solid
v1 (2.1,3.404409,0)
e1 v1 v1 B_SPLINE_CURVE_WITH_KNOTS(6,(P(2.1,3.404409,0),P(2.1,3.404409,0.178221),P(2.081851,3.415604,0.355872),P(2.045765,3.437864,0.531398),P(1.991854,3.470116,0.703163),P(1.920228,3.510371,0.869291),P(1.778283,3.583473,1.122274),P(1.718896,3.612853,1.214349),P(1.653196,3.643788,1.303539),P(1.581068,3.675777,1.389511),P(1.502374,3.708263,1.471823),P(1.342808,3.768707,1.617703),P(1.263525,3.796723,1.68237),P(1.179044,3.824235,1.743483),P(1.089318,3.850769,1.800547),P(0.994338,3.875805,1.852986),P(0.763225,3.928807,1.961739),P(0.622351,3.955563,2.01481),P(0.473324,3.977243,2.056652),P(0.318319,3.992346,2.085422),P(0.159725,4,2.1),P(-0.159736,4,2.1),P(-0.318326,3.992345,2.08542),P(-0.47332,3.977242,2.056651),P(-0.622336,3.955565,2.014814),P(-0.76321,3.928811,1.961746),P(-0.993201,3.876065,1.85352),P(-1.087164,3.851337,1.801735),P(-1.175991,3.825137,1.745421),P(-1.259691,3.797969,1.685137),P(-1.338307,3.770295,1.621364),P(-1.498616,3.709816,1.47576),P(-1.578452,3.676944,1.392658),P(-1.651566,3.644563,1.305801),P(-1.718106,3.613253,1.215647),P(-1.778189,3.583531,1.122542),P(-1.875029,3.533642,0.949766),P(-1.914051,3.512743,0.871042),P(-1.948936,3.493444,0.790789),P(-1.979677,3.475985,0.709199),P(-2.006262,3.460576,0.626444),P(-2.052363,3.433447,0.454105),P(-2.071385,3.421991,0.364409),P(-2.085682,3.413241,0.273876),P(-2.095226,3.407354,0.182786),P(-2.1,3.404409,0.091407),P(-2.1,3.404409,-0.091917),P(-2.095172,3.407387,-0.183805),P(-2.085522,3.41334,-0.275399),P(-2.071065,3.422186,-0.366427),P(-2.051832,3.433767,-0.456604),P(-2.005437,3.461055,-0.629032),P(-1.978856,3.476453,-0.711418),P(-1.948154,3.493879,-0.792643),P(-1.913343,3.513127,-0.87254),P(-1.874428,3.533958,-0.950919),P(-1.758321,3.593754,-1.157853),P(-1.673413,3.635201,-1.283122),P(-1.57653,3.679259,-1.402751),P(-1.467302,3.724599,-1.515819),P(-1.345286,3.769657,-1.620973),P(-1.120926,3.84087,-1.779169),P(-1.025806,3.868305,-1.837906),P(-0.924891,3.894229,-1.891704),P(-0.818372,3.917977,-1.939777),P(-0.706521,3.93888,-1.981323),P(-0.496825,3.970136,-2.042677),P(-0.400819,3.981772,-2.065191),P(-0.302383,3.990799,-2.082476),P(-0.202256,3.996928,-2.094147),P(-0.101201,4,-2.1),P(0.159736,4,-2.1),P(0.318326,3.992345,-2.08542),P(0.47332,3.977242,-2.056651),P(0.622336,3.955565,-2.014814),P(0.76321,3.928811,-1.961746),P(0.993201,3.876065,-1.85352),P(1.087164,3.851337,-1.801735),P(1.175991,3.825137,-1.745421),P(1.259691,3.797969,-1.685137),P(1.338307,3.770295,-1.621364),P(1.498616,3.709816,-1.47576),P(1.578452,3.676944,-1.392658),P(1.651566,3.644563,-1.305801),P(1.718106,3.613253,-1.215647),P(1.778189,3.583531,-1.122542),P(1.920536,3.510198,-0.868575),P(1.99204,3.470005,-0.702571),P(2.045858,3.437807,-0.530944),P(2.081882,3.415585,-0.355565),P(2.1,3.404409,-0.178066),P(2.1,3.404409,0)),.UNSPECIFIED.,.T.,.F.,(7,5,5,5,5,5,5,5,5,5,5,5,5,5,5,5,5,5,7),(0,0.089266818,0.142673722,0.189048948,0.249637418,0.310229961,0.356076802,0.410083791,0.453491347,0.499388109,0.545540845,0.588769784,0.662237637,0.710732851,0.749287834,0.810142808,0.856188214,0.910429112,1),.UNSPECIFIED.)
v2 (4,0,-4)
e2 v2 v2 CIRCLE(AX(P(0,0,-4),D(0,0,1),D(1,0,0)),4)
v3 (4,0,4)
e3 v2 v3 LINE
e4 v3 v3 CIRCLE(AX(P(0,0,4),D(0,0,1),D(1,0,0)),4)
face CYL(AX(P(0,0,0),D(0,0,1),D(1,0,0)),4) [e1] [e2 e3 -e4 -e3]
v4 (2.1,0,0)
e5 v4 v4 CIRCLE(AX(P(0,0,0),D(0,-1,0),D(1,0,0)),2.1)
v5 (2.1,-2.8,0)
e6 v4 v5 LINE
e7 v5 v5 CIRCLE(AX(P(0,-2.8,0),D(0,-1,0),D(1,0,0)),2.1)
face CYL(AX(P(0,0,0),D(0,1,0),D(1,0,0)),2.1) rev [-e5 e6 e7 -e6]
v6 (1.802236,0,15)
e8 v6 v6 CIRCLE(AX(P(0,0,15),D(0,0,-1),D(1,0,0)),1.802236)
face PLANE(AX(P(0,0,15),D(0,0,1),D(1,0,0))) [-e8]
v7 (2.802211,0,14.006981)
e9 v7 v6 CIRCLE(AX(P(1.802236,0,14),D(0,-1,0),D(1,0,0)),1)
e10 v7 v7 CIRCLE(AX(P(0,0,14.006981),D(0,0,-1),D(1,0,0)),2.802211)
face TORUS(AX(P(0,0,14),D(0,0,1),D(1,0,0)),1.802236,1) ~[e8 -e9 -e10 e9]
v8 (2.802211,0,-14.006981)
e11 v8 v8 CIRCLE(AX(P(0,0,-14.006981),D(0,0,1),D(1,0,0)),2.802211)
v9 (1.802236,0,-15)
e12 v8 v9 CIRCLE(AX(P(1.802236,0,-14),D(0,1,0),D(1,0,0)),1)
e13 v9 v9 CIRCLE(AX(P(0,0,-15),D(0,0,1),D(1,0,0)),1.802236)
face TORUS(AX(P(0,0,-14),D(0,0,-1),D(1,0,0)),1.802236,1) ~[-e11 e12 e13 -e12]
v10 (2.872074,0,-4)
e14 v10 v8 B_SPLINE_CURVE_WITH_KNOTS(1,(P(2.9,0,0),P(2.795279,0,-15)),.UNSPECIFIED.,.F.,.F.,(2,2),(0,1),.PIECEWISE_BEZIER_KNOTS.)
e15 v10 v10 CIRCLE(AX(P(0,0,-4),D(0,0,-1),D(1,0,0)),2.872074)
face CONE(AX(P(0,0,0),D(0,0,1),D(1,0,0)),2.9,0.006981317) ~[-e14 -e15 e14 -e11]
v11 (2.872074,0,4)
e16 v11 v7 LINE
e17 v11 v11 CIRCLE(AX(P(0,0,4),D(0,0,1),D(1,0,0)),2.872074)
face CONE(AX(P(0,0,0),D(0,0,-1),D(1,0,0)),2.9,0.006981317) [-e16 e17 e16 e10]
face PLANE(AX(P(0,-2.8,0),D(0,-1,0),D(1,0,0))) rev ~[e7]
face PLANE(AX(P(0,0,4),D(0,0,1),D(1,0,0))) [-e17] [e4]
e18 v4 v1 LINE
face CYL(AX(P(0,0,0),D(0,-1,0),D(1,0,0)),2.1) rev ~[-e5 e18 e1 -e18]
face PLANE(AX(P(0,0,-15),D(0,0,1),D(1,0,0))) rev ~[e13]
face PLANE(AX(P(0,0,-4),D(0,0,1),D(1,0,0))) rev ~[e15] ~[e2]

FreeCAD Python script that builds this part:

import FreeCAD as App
import Part
import Sketcher
Q = App.Units.Quantity


def edges_at(feature, points):
    """Names of the edges that pass closest to the given points."""
    edges = feature.Shape.Edges
    near = lambda p: min(range(len(edges)), key=lambda i: edges[i].distToShape(Part.Vertex(*p))[0])
    return sorted({f"Edge{near(p) + 1}" for p in points})

doc = App.newDocument("Part")
body = doc.addObject("PartDesign::Body", "Body")

# Sketch on XY plane
sketch1 = body.newObject("Sketcher::SketchObject", "Sketch")
sketch1.AttachmentSupport = (doc.getObject("XY_Plane"), [""])
sketch1.MapMode = "FlatFace"
sketch1.addGeometry(Part.Circle(App.Vector(0, 0, 0), App.Vector(0, 0, 1), 2.9), False)
sketch1.addConstraint([
    Sketcher.Constraint("Coincident", 0, 3, -1, 1),
    Sketcher.Constraint("Diameter", 0, Q("5.8 mm")),
])
pad1 = body.newObject("PartDesign::Pad", "Pad")
pad1.Profile = sketch1
pad1.Length = 15
pad1.TaperAngle = -0.4

# Sketch on XY plane
sketch2 = body.newObject("Sketcher::SketchObject", "Sketch001")
sketch2.AttachmentSupport = (doc.getObject("XY_Plane"), [""])
sketch2.MapMode = "FlatFace"
sketch2.addGeometry(Part.Circle(App.Vector(0, 0, 0), App.Vector(0, 0, 1), 2.9), False)
sketch2.addConstraint([
    Sketcher.Constraint("Coincident", 0, 3, -1, 1),
    Sketcher.Constraint("Diameter", 0, Q("5.8 mm")),
])
pad2 = body.newObject("PartDesign::Pad", "Pad001")
pad2.Profile = sketch2
pad2.Length = 15
pad2.Reversed = True
pad2.TaperAngle = -0.4

# Sketch on XY plane
sketch3 = body.newObject("Sketcher::SketchObject", "Sketch002")
sketch3.AttachmentSupport = (doc.getObject("XY_Plane"), [""])
sketch3.MapMode = "FlatFace"
sketch3.addGeometry(Part.Circle(App.Vector(0, 0, 0), App.Vector(0, 0, 1), 4), False)
sketch3.addConstraint([
    Sketcher.Constraint("Coincident", 0, 3, -1, 1),
    Sketcher.Constraint("Diameter", 0, Q("8 mm")),
])
pad3 = body.newObject("PartDesign::Pad", "Pad002")
pad3.Profile = sketch3
pad3.Length = 4

# Sketch on XY plane
sketch4 = body.newObject("Sketcher::SketchObject", "Sketch003")
sketch4.AttachmentSupport = (doc.getObject("XY_Plane"), [""])
sketch4.MapMode = "FlatFace"
sketch4.addGeometry(Part.Circle(App.Vector(0, 0, 0), App.Vector(0, 0, 1), 4), False)
sketch4.addConstraint([
    Sketcher.Constraint("Coincident", 0, 3, -1, 1),
    Sketcher.Constraint("Diameter", 0, Q("8 mm")),
])
pad4 = body.newObject("PartDesign::Pad", "Pad003")
pad4.Profile = sketch4
pad4.Length = 4
pad4.Reversed = True
doc.recompute()

fillet = body.newObject("PartDesign::Fillet", "Fillet")
fillet.Base = (pad4, edges_at(pad4, [(-2.795, 0, 15), (-2.795, 0, -15)]))
fillet.Radius = 1

# Sketch on XZ plane
sketch5 = body.newObject("Sketcher::SketchObject", "Sketch004")
sketch5.AttachmentSupport = (doc.getObject("XZ_Plane"), [""])
sketch5.MapMode = "FlatFace"
sketch5.addGeometry(Part.Circle(App.Vector(0, 0, 0), App.Vector(0, 0, 1), 2.1), False)
sketch5.addConstraint([
    Sketcher.Constraint("Coincident", 0, 3, -1, 1),
    Sketcher.Constraint("Diameter", 0, Q("4.2 mm")),
])
pocket1 = body.newObject("PartDesign::Pocket", "Pocket")
pocket1.Profile = sketch5
pocket1.Length = 4.2

# Sketch on XZ plane
sketch6 = body.newObject("Sketcher::SketchObject", "Sketch005")
sketch6.AttachmentSupport = (doc.getObject("XZ_Plane"), [""])
sketch6.MapMode = "FlatFace"
sketch6.addGeometry(Part.Circle(App.Vector(0, 0, 0), App.Vector(0, 0, 1), 2.1), False)
sketch6.addConstraint([
    Sketcher.Constraint("Coincident", 0, 3, -1, 1),
    Sketcher.Constraint("Diameter", 0, Q("4.2 mm")),
])
pocket2 = body.newObject("PartDesign::Pocket", "Pocket001")
pocket2.Profile = sketch6
pocket2.Length = 2.8
pocket2.Reversed = True

doc.recompute()
